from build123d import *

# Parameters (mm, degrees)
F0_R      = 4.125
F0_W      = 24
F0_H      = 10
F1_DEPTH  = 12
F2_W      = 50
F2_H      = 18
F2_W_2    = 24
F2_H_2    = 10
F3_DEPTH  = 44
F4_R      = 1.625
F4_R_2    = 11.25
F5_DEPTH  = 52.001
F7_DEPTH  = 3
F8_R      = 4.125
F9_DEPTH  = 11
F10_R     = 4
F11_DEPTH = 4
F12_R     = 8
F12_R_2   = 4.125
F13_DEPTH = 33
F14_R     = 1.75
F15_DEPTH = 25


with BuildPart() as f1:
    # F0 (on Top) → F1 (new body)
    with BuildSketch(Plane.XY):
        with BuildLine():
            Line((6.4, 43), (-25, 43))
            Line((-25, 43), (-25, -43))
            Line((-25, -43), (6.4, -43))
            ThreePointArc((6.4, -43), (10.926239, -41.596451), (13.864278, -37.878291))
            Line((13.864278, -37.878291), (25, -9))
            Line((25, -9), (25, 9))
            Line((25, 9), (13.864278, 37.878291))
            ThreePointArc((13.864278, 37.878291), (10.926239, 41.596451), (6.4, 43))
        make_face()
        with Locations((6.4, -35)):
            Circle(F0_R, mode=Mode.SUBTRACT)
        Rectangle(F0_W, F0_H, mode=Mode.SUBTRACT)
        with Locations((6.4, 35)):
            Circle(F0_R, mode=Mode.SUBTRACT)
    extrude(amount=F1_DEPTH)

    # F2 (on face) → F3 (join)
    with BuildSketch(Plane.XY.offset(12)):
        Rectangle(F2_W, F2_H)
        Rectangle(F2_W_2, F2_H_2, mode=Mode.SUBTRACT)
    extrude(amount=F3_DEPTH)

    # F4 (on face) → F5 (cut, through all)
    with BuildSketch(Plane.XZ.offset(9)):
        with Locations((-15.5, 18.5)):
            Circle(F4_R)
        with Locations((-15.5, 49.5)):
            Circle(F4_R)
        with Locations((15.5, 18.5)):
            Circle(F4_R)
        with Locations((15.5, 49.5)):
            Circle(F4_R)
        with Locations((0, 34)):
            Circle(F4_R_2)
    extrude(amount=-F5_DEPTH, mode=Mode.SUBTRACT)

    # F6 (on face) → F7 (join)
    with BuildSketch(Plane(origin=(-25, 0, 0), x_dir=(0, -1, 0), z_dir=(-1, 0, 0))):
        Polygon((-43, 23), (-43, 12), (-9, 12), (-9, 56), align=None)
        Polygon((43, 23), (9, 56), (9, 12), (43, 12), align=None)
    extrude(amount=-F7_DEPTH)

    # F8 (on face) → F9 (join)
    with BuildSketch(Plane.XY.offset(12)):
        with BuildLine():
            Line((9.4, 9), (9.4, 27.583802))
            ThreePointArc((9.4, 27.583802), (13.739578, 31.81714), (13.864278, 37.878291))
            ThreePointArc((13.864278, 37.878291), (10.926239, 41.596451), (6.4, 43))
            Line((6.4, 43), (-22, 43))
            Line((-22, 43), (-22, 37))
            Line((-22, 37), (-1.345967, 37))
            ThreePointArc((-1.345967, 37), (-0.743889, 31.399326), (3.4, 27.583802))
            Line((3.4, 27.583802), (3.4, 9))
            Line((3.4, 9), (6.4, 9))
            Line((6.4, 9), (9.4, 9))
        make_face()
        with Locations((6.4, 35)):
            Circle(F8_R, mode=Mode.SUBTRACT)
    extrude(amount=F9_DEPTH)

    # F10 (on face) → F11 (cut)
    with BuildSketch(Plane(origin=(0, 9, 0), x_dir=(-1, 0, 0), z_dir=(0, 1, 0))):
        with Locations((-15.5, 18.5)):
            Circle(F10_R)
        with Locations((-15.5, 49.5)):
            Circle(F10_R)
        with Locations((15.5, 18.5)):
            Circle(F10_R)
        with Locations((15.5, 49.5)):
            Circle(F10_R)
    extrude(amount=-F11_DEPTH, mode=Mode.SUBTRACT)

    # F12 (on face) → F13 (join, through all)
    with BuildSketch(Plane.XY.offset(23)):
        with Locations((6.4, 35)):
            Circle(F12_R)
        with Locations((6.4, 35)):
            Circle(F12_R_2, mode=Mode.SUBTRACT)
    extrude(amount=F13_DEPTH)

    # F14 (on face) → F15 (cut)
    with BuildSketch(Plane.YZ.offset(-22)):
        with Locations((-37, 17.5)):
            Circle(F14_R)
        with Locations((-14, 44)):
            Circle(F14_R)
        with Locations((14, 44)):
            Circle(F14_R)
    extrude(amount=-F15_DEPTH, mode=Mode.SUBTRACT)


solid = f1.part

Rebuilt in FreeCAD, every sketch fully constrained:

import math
import FreeCAD as App
import Part
import Sketcher
Q = App.Units.Quantity


def add_polygon(sketch, points):
    """Adds a closed chain of lines whose ends are joined by coincident constraints."""
    first, n = sketch.GeometryCount, len(points)
    for a, b in zip(points, points[1:] + points[:1]):
        sketch.addGeometry(Part.LineSegment(App.Vector(*a, 0), App.Vector(*b, 0)), False)
    for i in range(n):
        sketch.addConstraint(Sketcher.Constraint("Coincident", first + i, 2, first + (i + 1) % n, 1))

doc = App.newDocument("Part")
body = doc.addObject("PartDesign::Body", "Body")

# Sketch on XY plane
sketch1 = body.newObject("Sketcher::SketchObject", "Sketch")
sketch1.AttachmentSupport = (doc.getObject("XY_Plane"), [""])
sketch1.MapMode = "FlatFace"
sketch1.addGeometry(Part.LineSegment(App.Vector(6.4, 43, 0), App.Vector(-25, 43, 0)), False)  # 0
sketch1.addGeometry(Part.LineSegment(App.Vector(-25, 43, 0), App.Vector(-25, -43, 0)), False)  # 1
sketch1.addGeometry(Part.LineSegment(App.Vector(-25, -43, 0), App.Vector(6.4, -43, 0)), False)  # 2
sketch1.addGeometry(Part.ArcOfCircle(Part.Circle(App.Vector(6.400001, -35.000001, 0), App.Vector(0, 0, 1), 7.999999), math.radians(-90.000006), math.radians(-21.087074)), False)  # 3
sketch1.addGeometry(Part.LineSegment(App.Vector(13.864278, -37.878291, 0), App.Vector(25, -9, 0)), False)  # 4
sketch1.addGeometry(Part.LineSegment(App.Vector(25, -9, 0), App.Vector(25, 9, 0)), False)  # 5
sketch1.addGeometry(Part.LineSegment(App.Vector(25, 9, 0), App.Vector(13.864278, 37.878291, 0)), False)  # 6
sketch1.addGeometry(Part.ArcOfCircle(Part.Circle(App.Vector(6.400001, 35.000001, 0), App.Vector(0, 0, 1), 7.999999), math.radians(21.087074), math.radians(90.000006)), False)  # 7
sketch1.addGeometry(Part.Circle(App.Vector(6.4, -35, 0), App.Vector(0, 0, 1), 4.125), False)  # 8
add_polygon(sketch1, [(12, -5), (-12, -5), (-12, 5), (12, 5)])  # lines 9-12
sketch1.addGeometry(Part.Circle(App.Vector(6.4, 35, 0), App.Vector(0, 0, 1), 4.125), False)  # 13
sketch1.addConstraint([
    Sketcher.Constraint("Coincident", 0, 2, 1, 1),
    Sketcher.Constraint("Coincident", 1, 2, 2, 1),
    Sketcher.Constraint("Tangent", 2, 2, 3, 1),
    Sketcher.Constraint("Tangent", 3, 2, 4, 1),
    Sketcher.Constraint("Coincident", 4, 2, 5, 1),
    Sketcher.Constraint("Coincident", 5, 2, 6, 1),
    Sketcher.Constraint("Tangent", 6, 2, 7, 1),
    Sketcher.Constraint("Tangent", 7, 2, 0, 1),
    Sketcher.Constraint("Horizontal", 0),
    Sketcher.Constraint("Vertical", 1),
    Sketcher.Constraint("Horizontal", 2),
    Sketcher.Constraint("Vertical", 5),
    Sketcher.Constraint("Horizontal", 9),
    Sketcher.Constraint("Vertical", 10),
    Sketcher.Constraint("Horizontal", 11),
    Sketcher.Constraint("Vertical", 12),
    Sketcher.Constraint("Coincident", 8, 3, 3, 3),
    Sketcher.Constraint("Coincident", 13, 3, 7, 3),
    Sketcher.Constraint("Equal", 3, 7),
    Sketcher.Constraint("Equal", 8, 13),
    Sketcher.Constraint("Symmetric", 9, 2, 11, 2, -1, 1),
    Sketcher.Constraint("Symmetric", 3, 3, 7, 3, -1),
    Sketcher.Constraint("Vertical", 3, 2, 6, 2),
    Sketcher.Constraint("Radius", 3, Q("7.999999 mm")),
    Sketcher.Constraint("Diameter", 8, Q("8.25 mm")),
    Sketcher.Constraint("DistanceX", 9, 2, 9, 1, Q("24 mm")),
    Sketcher.Constraint("DistanceY", 1, 2, 1, 1, Q("86 mm")),
    Sketcher.Constraint("DistanceY", 5, 1, 5, 2, Q("18 mm")),
    Sketcher.Constraint("DistanceY", 10, 1, 10, 2, Q("10 mm")),
    Sketcher.Constraint("DistanceX", 0, 2, 0, 1, Q("31.4 mm")),
    Sketcher.Constraint("DistanceX", 0, 2, -1, 1, Q("25 mm")),
    Sketcher.Constraint("DistanceX", -1, 1, 4, 2, Q("25 mm")),
])
pad1 = body.newObject("PartDesign::Pad", "Pad")
pad1.Profile = sketch1
pad1.Length = 12

# Sketch on XY plane
sketch2 = body.newObject("Sketcher::SketchObject", "Sketch001")
sketch2.AttachmentSupport = (doc.getObject("XY_Plane"), [""])
sketch2.MapMode = "FlatFace"
sketch2.AttachmentOffset = App.Placement(App.Vector(0, 0, 12), App.Rotation())
add_polygon(sketch2, [(-25, 9), (-25, -9), (25, -9), (25, 9)])  # lines 0-3
add_polygon(sketch2, [(12, -5), (-12, -5), (-12, 5), (12, 5)])  # lines 4-7
sketch2.addConstraint([
    Sketcher.Constraint("Vertical", 0),
    Sketcher.Constraint("Horizontal", 1),
    Sketcher.Constraint("Vertical", 2),
    Sketcher.Constraint("Horizontal", 3),
    Sketcher.Constraint("Horizontal", 4),
    Sketcher.Constraint("Vertical", 5),
    Sketcher.Constraint("Horizontal", 6),
    Sketcher.Constraint("Vertical", 7),
    Sketcher.Constraint("Symmetric", 0, 2, 2, 2, -1, 1),
    Sketcher.Constraint("Symmetric", 4, 2, 6, 2, -1, 1),
    Sketcher.Constraint("DistanceX", 1, 1, 1, 2, Q("50 mm")),
    Sketcher.Constraint("DistanceX", 4, 2, 4, 1, Q("24 mm")),
    Sketcher.Constraint("DistanceY", 0, 2, 0, 1, Q("18 mm")),
    Sketcher.Constraint("DistanceY", 5, 1, 5, 2, Q("10 mm")),
])
pad2 = body.newObject("PartDesign::Pad", "Pad001")
pad2.Profile = sketch2
pad2.Length = 44

# Sketch on XZ plane
sketch3 = body.newObject("Sketcher::SketchObject", "Sketch002")
sketch3.AttachmentSupport = (doc.getObject("XZ_Plane"), [""])
sketch3.MapMode = "FlatFace"
sketch3.AttachmentOffset = App.Placement(App.Vector(0, 0, 9), App.Rotation())
sketch3.addGeometry([
    Part.Circle(App.Vector(-15.5, 18.5, 0), App.Vector(0, 0, 1), 1.625),  # 0
    Part.Circle(App.Vector(-15.5, 49.5, 0), App.Vector(0, 0, 1), 1.625),  # 1
    Part.Circle(App.Vector(15.5, 18.5, 0), App.Vector(0, 0, 1), 1.625),  # 2
    Part.Circle(App.Vector(15.5, 49.5, 0), App.Vector(0, 0, 1), 1.625),  # 3
    Part.Circle(App.Vector(0, 34, 0), App.Vector(0, 0, 1), 11.25),  # 4
], False)
sketch3.addConstraint([
    Sketcher.Constraint("Equal", 0, 1),
    Sketcher.Constraint("Equal", 1, 2),
    Sketcher.Constraint("Equal", 2, 3),
    Sketcher.Constraint("Symmetric", 0, 3, 2, 3, -2),
    Sketcher.Constraint("Symmetric", 1, 3, 3, 3, -2),
    Sketcher.Constraint("PointOnObject", 4, 3, -2),
    Sketcher.Constraint("Vertical", 0, 3, 1, 3),
    Sketcher.Constraint("Diameter", 4, Q("22.5 mm")),
    Sketcher.Constraint("Diameter", 0, Q("3.25 mm")),
    Sketcher.Constraint("DistanceY", -1, 1, 4, 3, Q("34 mm")),
    Sketcher.Constraint("DistanceY", 0, 3, 1, 3, Q("31 mm")),
    Sketcher.Constraint("DistanceX", 0, 3, 2, 3, Q("31 mm")),
    Sketcher.Constraint("DistanceY", -1, 1, 0, 3, Q("18.5 mm")),
])
pocket1 = body.newObject("PartDesign::Pocket", "Pocket")
pocket1.Profile = sketch3
pocket1.Type = "ThroughAll"

# Sketch on YZ plane
sketch4 = body.newObject("Sketcher::SketchObject", "Sketch003")
sketch4.AttachmentSupport = (doc.getObject("YZ_Plane"), [""])
sketch4.MapMode = "FlatFace"
sketch4.AttachmentOffset = App.Placement(App.Vector(0, 0, -25), App.Rotation())
add_polygon(sketch4, [(43, 23), (43, 12), (9, 12), (9, 56)])  # lines 0-3
add_polygon(sketch4, [(-43, 23), (-9, 56), (-9, 12), (-43, 12)])  # lines 4-7
sketch4.addConstraint([
    Sketcher.Constraint("Vertical", 0),
    Sketcher.Constraint("Horizontal", 1),
    Sketcher.Constraint("Vertical", 2),
    Sketcher.Constraint("Vertical", 5),
    Sketcher.Constraint("Horizontal", 6),
    Sketcher.Constraint("Vertical", 7),
    Sketcher.Constraint("Symmetric", 2, 2, 4, 2, -2),
    Sketcher.Constraint("Symmetric", 0, 2, 6, 2, -2),
    Sketcher.Constraint("Horizontal", 3, 2, 7, 2),
    Sketcher.Constraint("DistanceX", 1, 2, 1, 1, Q("34 mm")),
    Sketcher.Constraint("DistanceY", 0, 2, 0, 1, Q("11 mm")),
    Sketcher.Constraint("DistanceY", 2, 1, 2, 2, Q("44 mm")),
    Sketcher.Constraint("DistanceX", -1, 1, 0, 2, Q("43 mm")),
    Sketcher.Constraint("DistanceY", -1, 1, 0, 2, Q("12 mm")),
])
pad3 = body.newObject("PartDesign::Pad", "Pad002")
pad3.Profile = sketch4
pad3.Length = 3

# Sketch on XY plane
sketch5 = body.newObject("Sketcher::SketchObject", "Sketch004")
sketch5.AttachmentSupport = (doc.getObject("XY_Plane"), [""])
sketch5.MapMode = "FlatFace"
sketch5.AttachmentOffset = App.Placement(App.Vector(0, 0, 12), App.Rotation())
sketch5.addGeometry([
    Part.LineSegment(App.Vector(9.4, 9, 0), App.Vector(9.4, 27.583802, 0)),  # 0
    Part.ArcOfCircle(Part.Circle(App.Vector(6.400001, 35, 0), App.Vector(0, 0, 1), 7.999999), math.radians(-67.975693), math.radians(21.087078)),  # 1
    Part.ArcOfCircle(Part.Circle(App.Vector(6.400001, 35.000001, 0), App.Vector(0, 0, 1), 7.999999), math.radians(21.087074), math.radians(90.000006)),  # 2
    Part.LineSegment(App.Vector(6.4, 43, 0), App.Vector(-22, 43, 0)),  # 3
    Part.LineSegment(App.Vector(-22, 43, 0), App.Vector(-22, 37, 0)),  # 4
    Part.LineSegment(App.Vector(-22, 37, 0), App.Vector(-1.345967, 37, 0)),  # 5
    Part.ArcOfCircle(Part.Circle(App.Vector(6.399999, 35, 0), App.Vector(0, 0, 1), 7.999999), math.radians(165.522486), math.radians(247.975694)),  # 6
    Part.LineSegment(App.Vector(3.4, 27.583802, 0), App.Vector(3.4, 9, 0)),  # 7
    Part.LineSegment(App.Vector(3.4, 9, 0), App.Vector(9.4, 9, 0)),  # 8
    Part.Circle(App.Vector(6.4, 35, 0), App.Vector(0, 0, 1), 4.125),  # 9
], False)
sketch5.addConstraint([
    Sketcher.Constraint("Coincident", 0, 2, 1, 1),
    Sketcher.Constraint("Tangent", 1, 2, 2, 1),
    Sketcher.Constraint("Tangent", 2, 2, 3, 1),
    Sketcher.Constraint("Coincident", 3, 2, 4, 1),
    Sketcher.Constraint("Coincident", 4, 2, 5, 1),
    Sketcher.Constraint("Coincident", 5, 2, 6, 1),
    Sketcher.Constraint("Coincident", 6, 2, 7, 1),
    Sketcher.Constraint("Coincident", 7, 2, 8, 1),
    Sketcher.Constraint("Coincident", 8, 2, 0, 1),
    Sketcher.Constraint("Vertical", 0),
    Sketcher.Constraint("Horizontal", 3),
    Sketcher.Constraint("Vertical", 4),
    Sketcher.Constraint("Horizontal", 5),
    Sketcher.Constraint("Vertical", 7),
    Sketcher.Constraint("Horizontal", 8),
    Sketcher.Constraint("Coincident", 6, 3, 1, 3),
    Sketcher.Constraint("Coincident", 9, 3, 1, 3),
    Sketcher.Constraint("Equal", 1, 2),
    Sketcher.Constraint("Equal", 2, 6),
    Sketcher.Constraint("Horizontal", 0, 2, 6, 2),
    Sketcher.Constraint("Equal", 8, 4),
    Sketcher.Constraint("Radius", 1, Q("7.999999 mm")),
    Sketcher.Constraint("Diameter", 9, Q("8.25 mm")),
    Sketcher.Constraint("DistanceX", 8, 1, 8, 2, Q("6 mm")),
    Sketcher.Constraint("DistanceX", 3, 2, 3, 1, Q("28.4 mm")),
    Sketcher.Constraint("DistanceY", -1, 1, 1, 3, Q("35 mm")),
    Sketcher.Constraint("DistanceX", 3, 2, -1, 1, Q("22 mm")),
    Sketcher.Constraint("DistanceY", -1, 1, 7, 2, Q("9 mm")),
    Sketcher.Constraint("DistanceX", -1, 1, 1, 2, Q("13.864278 mm")),
])
pad4 = body.newObject("PartDesign::Pad", "Pad003")
pad4.Profile = sketch5
pad4.Length = 11

# Sketch on XZ plane
sketch6 = body.newObject("Sketcher::SketchObject", "Sketch005")
sketch6.AttachmentSupport = (doc.getObject("XZ_Plane"), [""])
sketch6.MapMode = "FlatFace"
sketch6.AttachmentOffset = App.Placement(App.Vector(0, 0, -9), App.Rotation())
sketch6.addGeometry([
    Part.Circle(App.Vector(15.5, 18.5, 0), App.Vector(0, 0, 1), 4),
    Part.Circle(App.Vector(15.5, 49.5, 0), App.Vector(0, 0, 1), 4),
    Part.Circle(App.Vector(-15.5, 18.5, 0), App.Vector(0, 0, 1), 4),
    Part.Circle(App.Vector(-15.5, 49.5, 0), App.Vector(0, 0, 1), 4),
], False)
sketch6.addConstraint([
    Sketcher.Constraint("Equal", 0, 1),
    Sketcher.Constraint("Equal", 1, 2),
    Sketcher.Constraint("Equal", 2, 3),
    Sketcher.Constraint("Symmetric", 0, 3, 2, 3, -2),
    Sketcher.Constraint("Symmetric", 1, 3, 3, 3, -2),
    Sketcher.Constraint("Vertical", 0, 3, 1, 3),
    Sketcher.Constraint("Diameter", 0, Q("8 mm")),
    Sketcher.Constraint("DistanceY", 0, 3, 1, 3, Q("31 mm")),
    Sketcher.Constraint("DistanceX", 2, 3, 0, 3, Q("31 mm")),
    Sketcher.Constraint("DistanceY", -1, 1, 0, 3, Q("18.5 mm")),
])
pocket2 = body.newObject("PartDesign::Pocket", "Pocket001")
pocket2.Profile = sketch6
pocket2.Length = 4
pocket2.Reversed = True

# Sketch on XY plane
sketch7 = body.newObject("Sketcher::SketchObject", "Sketch006")
sketch7.AttachmentSupport = (doc.getObject("XY_Plane"), [""])
sketch7.MapMode = "FlatFace"
sketch7.AttachmentOffset = App.Placement(App.Vector(0, 0, 23), App.Rotation())
sketch7.addGeometry([
    Part.Circle(App.Vector(6.4, 35, 0), App.Vector(0, 0, 1), 8),
    Part.Circle(App.Vector(6.4, 35, 0), App.Vector(0, 0, 1), 4.125),
], False)
sketch7.addConstraint([
    Sketcher.Constraint("Coincident", 1, 3, 0, 3),
    Sketcher.Constraint("Diameter", 0, Q("16 mm")),
    Sketcher.Constraint("Diameter", 1, Q("8.25 mm")),
    Sketcher.Constraint("DistanceY", -1, 1, 0, 3, Q("35 mm")),
    Sketcher.Constraint("DistanceX", -1, 1, 0, 3, Q("6.4 mm")),
])
pad5 = body.newObject("PartDesign::Pad", "Pad004")
pad5.Profile = sketch7
pad5.Length = 33

# Sketch on YZ plane
sketch8 = body.newObject("Sketcher::SketchObject", "Sketch007")
sketch8.AttachmentSupport = (doc.getObject("YZ_Plane"), [""])
sketch8.MapMode = "FlatFace"
sketch8.AttachmentOffset = App.Placement(App.Vector(0, 0, -22), App.Rotation())
sketch8.addGeometry([
    Part.Circle(App.Vector(-37, 17.5, 0), App.Vector(0, 0, 1), 1.75),
    Part.Circle(App.Vector(-14, 44, 0), App.Vector(0, 0, 1), 1.75),
    Part.Circle(App.Vector(14, 44, 0), App.Vector(0, 0, 1), 1.75),
], False)
sketch8.addConstraint([
    Sketcher.Constraint("Equal", 0, 1),
    Sketcher.Constraint("Equal", 1, 2),
    Sketcher.Constraint("Symmetric", 1, 3, 2, 3, -2),
    Sketcher.Constraint("Diameter", 0, Q("3.5 mm")),
    Sketcher.Constraint("DistanceX", 0, 3, -1, 1, Q("37 mm")),
    Sketcher.Constraint("DistanceX", 1, 3, -1, 1, Q("14 mm")),
    Sketcher.Constraint("DistanceY", -1, 1, 1, 3, Q("44 mm")),
    Sketcher.Constraint("DistanceY", -1, 1, 0, 3, Q("17.5 mm")),
])
pocket3 = body.newObject("PartDesign::Pocket", "Pocket002")
pocket3.Profile = sketch8
pocket3.Length = 25

doc.recompute()
